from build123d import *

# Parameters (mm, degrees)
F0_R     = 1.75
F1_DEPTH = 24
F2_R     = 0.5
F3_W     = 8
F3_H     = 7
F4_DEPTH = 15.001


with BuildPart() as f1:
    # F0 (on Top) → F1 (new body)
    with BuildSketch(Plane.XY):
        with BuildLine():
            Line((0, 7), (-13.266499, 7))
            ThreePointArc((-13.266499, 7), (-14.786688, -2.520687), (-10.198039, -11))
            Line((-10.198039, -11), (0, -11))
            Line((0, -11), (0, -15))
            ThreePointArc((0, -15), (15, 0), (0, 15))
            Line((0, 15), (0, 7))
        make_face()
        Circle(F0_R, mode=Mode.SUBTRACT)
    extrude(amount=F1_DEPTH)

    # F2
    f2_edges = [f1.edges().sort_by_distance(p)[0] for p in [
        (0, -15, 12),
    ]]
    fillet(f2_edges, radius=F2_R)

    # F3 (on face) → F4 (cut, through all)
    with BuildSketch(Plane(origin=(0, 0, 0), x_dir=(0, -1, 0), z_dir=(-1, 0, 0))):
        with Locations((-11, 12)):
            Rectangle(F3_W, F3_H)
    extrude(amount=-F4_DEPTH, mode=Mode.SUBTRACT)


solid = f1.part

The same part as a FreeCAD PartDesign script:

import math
import FreeCAD as App
import Part
import Sketcher

V = App.Vector
Q = App.Units.Quantity


def edges_at(feature, points):
    """Names of the edges that pass closest to the given points."""
    edges = feature.Shape.Edges
    near = lambda p: min(range(len(edges)), key=lambda i: edges[i].distToShape(Part.Vertex(*p))[0])
    return sorted({f"Edge{near(p) + 1}" for p in points})


def add_polygon(sketch, points):
    """Adds a closed chain of lines whose ends are joined by coincident constraints."""
    first, n = sketch.GeometryCount, len(points)
    for a, b in zip(points, points[1:] + points[:1]):
        sketch.addGeometry(Part.LineSegment(App.Vector(*a, 0), App.Vector(*b, 0)), False)
    for i in range(n):
        sketch.addConstraint(Sketcher.Constraint("Coincident", first + i, 2, first + (i + 1) % n, 1))

doc = App.newDocument("Part")
body = doc.addObject("PartDesign::Body", "Body")

# Sketch on XY plane
sketch1 = doc.addObject("Sketcher::SketchObject", "Sketch")
body.addObject(sketch1)
sketch1.AttachmentSupport = (doc.XY_Plane, [""])
sketch1.MapMode = "FlatFace"
sketch1.addGeometry([
    Part.LineSegment(V(0, 7, 0), V(-13.266499, 7, 0)),  # 0
    Part.ArcOfCircle(Part.Circle(V(-0.000001, 0, 0), V(0, 0, 1), 14.999999), math.radians(152.181857), math.radians(227.166574)),  # 1
    Part.LineSegment(V(-10.198039, -11, 0), V(0, -11, 0)),  # 2
    Part.LineSegment(V(0, -11, 0), V(0, -15, 0)),  # 3
    Part.ArcOfCircle(Part.Circle(V(0, 0, 0), V(0, 0, 1), 15), math.radians(-90), math.radians(90)),  # 4
    Part.LineSegment(V(0, 15, 0), V(0, 7, 0)),  # 5
    Part.Circle(V(0, 0, 0), V(0, 0, 1), 1.75),  # 6
], False)
sketch1.addConstraint([
    Sketcher.Constraint("Coincident", 0, 2, 1, 1),
    Sketcher.Constraint("Coincident", 1, 2, 2, 1),
    Sketcher.Constraint("Coincident", 2, 2, 3, 1),
    Sketcher.Constraint("Coincident", 3, 2, 4, 1),
    Sketcher.Constraint("Coincident", 4, 2, 5, 1),
    Sketcher.Constraint("Coincident", 5, 2, 0, 1),
    Sketcher.Constraint("Horizontal", 0),
    Sketcher.Constraint("Horizontal", 2),
    Sketcher.Constraint("Vertical", 3),
    Sketcher.Constraint("Vertical", 5),
    Sketcher.Constraint("Coincident", 1, 3, -1, 1),
    Sketcher.Constraint("Coincident", 4, 3, -1, 1),
    Sketcher.Constraint("Coincident", 6, 3, -1, 1),
    Sketcher.Constraint("Equal", 1, 4),
    Sketcher.Constraint("PointOnObject", 2, 2, -2),
    Sketcher.Constraint("PointOnObject", 4, 2, -2),
    Sketcher.Constraint("Radius", 1, Q("14.999999 mm")),
    Sketcher.Constraint("Diameter", 6, Q("3.5 mm")),
    Sketcher.Constraint("DistanceY", 3, 2, 3, 1, Q("4 mm")),
    Sketcher.Constraint("DistanceY", 5, 2, 5, 1, Q("8 mm")),
])
pad1 = doc.addObject("PartDesign::Pad", "Pad")
body.addObject(pad1)
pad1.Profile = sketch1
pad1.Length = 24
doc.recompute()

fillet = doc.addObject("PartDesign::Fillet", "Fillet")
body.addObject(fillet)
fillet.Base = (pad1, edges_at(pad1, [(0, -15, 12)]))
fillet.Radius = 0.5

# Sketch on YZ plane
sketch2 = doc.addObject("Sketcher::SketchObject", "Sketch001")
body.addObject(sketch2)
sketch2.AttachmentSupport = (doc.YZ_Plane, [""])
sketch2.MapMode = "FlatFace"
add_polygon(sketch2, [(15, 15.5), (15, 8.5), (7, 8.5), (7, 15.5)])  # lines 0-3
sketch2.addConstraint([
    Sketcher.Constraint("Vertical", 0),
    Sketcher.Constraint("Horizontal", 1),
    Sketcher.Constraint("Vertical", 2),
    Sketcher.Constraint("Horizontal", 3),
    Sketcher.Constraint("DistanceX", 1, 2, 1, 1, Q("8 mm")),
    Sketcher.Constraint("DistanceY", 0, 2, 0, 1, Q("7 mm")),
    Sketcher.Constraint("DistanceX", -1, 1, 0, 2, Q("15 mm")),
    Sketcher.Constraint("DistanceY", -1, 1, 0, 2, Q("8.5 mm")),
])
pocket1 = doc.addObject("PartDesign::Pocket", "Pocket")
body.addObject(pocket1)
pocket1.Profile = sketch2
pocket1.Type = "ThroughAll"
pocket1.Reversed = True

doc.recompute()
